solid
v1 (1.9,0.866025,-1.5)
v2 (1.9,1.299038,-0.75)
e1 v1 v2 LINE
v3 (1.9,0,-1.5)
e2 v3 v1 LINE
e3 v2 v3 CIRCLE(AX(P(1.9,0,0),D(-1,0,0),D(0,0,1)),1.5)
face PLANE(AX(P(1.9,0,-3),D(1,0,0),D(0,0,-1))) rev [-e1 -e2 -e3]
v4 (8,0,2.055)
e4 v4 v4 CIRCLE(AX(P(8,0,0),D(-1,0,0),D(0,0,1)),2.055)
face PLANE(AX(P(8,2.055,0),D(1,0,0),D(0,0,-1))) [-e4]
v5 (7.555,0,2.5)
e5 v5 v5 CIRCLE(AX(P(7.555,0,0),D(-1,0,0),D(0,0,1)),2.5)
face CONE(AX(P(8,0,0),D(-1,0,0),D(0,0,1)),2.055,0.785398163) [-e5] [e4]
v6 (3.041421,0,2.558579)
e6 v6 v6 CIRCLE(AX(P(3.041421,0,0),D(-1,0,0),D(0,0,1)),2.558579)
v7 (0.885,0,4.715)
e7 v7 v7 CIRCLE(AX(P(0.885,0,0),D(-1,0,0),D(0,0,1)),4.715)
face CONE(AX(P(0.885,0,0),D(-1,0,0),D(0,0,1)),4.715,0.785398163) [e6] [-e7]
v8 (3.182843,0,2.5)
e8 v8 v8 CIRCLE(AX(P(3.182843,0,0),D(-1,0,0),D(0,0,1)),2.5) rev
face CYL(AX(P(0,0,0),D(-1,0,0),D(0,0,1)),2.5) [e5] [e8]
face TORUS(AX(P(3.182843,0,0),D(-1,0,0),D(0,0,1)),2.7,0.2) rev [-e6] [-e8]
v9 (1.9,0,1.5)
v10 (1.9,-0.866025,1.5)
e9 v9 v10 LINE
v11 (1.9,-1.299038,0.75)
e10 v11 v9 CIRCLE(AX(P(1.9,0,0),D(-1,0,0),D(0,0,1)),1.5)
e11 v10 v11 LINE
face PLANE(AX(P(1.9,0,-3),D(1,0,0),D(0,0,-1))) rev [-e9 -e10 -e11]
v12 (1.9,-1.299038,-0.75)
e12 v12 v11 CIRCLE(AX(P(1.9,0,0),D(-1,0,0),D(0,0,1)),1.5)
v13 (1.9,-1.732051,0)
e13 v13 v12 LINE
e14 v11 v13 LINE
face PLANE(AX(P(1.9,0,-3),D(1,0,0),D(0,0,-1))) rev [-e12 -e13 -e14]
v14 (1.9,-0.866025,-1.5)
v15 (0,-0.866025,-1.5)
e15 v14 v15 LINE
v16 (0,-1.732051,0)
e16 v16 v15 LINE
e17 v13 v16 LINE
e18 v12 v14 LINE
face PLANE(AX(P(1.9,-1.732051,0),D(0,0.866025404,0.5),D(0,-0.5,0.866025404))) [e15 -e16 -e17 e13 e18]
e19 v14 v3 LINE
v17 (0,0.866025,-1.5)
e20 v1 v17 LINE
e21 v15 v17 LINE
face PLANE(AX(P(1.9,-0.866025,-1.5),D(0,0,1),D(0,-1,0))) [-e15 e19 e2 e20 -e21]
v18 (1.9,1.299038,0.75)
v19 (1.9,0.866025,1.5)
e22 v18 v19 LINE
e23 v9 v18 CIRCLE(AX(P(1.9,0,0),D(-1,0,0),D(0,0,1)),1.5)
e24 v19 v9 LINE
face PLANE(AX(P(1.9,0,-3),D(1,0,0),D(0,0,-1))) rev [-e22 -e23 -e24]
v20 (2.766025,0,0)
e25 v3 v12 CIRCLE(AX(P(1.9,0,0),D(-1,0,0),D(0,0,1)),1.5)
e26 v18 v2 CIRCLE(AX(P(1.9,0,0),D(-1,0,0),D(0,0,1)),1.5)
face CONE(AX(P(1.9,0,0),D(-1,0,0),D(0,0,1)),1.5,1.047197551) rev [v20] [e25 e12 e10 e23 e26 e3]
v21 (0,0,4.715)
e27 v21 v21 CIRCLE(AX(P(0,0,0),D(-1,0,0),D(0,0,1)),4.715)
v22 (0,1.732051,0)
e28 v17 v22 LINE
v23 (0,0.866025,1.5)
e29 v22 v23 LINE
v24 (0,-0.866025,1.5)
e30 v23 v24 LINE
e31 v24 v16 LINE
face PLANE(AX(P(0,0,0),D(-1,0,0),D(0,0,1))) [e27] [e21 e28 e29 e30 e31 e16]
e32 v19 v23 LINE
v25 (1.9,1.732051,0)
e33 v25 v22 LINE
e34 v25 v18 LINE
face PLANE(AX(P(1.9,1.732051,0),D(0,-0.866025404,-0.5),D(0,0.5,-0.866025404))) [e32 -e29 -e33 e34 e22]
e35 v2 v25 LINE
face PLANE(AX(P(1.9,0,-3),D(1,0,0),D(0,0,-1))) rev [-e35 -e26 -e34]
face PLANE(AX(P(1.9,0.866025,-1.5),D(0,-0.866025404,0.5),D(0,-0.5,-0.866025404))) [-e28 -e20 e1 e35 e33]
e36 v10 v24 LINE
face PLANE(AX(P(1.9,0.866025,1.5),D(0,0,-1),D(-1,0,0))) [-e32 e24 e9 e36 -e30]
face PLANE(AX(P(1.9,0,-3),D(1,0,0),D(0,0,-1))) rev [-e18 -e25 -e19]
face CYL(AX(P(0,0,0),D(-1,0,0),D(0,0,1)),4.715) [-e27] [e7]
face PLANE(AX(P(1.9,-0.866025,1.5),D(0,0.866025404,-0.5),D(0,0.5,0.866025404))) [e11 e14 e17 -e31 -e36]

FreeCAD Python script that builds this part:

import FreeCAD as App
import Part
import Sketcher
Q = App.Units.Quantity


def edges_at(feature, points):
    """Names of the edges that pass closest to the given points."""
    edges = feature.Shape.Edges
    near = lambda p: min(range(len(edges)), key=lambda i: edges[i].distToShape(Part.Vertex(*p))[0])
    return sorted({f"Edge{near(p) + 1}" for p in points})


def add_polygon(sketch, points):
    """Adds a closed chain of lines whose ends are joined by coincident constraints."""
    first, n = sketch.GeometryCount, len(points)
    for a, b in zip(points, points[1:] + points[:1]):
        sketch.addGeometry(Part.LineSegment(App.Vector(*a, 0), App.Vector(*b, 0)), False)
    for i in range(n):
        sketch.addConstraint(Sketcher.Constraint("Coincident", first + i, 2, first + (i + 1) % n, 1))

doc = App.newDocument("Part")
body = doc.addObject("PartDesign::Body", "Body")

sketch1 = body.newObject("Sketcher::SketchObject", "Sketch")
sketch1.AttachmentSupport = (doc.getObject("XY_Plane"), [""])
sketch1.MapMode = "FlatFace"
add_polygon(sketch1, [(0, 4.7), (0, 0), (8, 0), (8, 2.1), (7.6, 2.5), (3.1, 2.5), (0.9, 4.7)])
sketch1.addConstraint([
    Sketcher.Constraint("Vertical", 0),
    Sketcher.Constraint("Horizontal", 1),
    Sketcher.Constraint("Vertical", 2),
    Sketcher.Constraint("Horizontal", 4),
    Sketcher.Constraint("Horizontal", 6),
    Sketcher.Constraint("Coincident", 0, 2, -1, 1),
    Sketcher.Constraint("Parallel", 3, 5),
    Sketcher.Constraint("DistanceX", 1, 1, 1, 2, Q("8 mm")),
    Sketcher.Constraint("Angle", 3, Q("135 deg")),
    Sketcher.Constraint("DistanceY", -1, 1, 3, 2, Q("2.5 mm")),
    Sketcher.Constraint("DistanceX", -1, 1, 4, 2, Q("3.1 mm")),
    Sketcher.Constraint("DistanceX", 4, 2, 4, 1, Q("4.455 mm")),
    Sketcher.Constraint("DistanceX", 6, 2, 6, 1, Q("0.885 mm")),
])
revolution = body.newObject("PartDesign::Revolution", "Revolution")
revolution.Profile = sketch1
revolution.ReferenceAxis = (sketch1, ["H_Axis"])
revolution.Angle = 360
doc.recompute()

fillet = body.newObject("PartDesign::Fillet", "Fillet")
fillet.Base = (revolution, edges_at(revolution, [(3.1, 0, -2.5)]))
fillet.Radius = 0.2

sketch2 = body.newObject("Sketcher::SketchObject", "Sketch001")
sketch2.AttachmentSupport = (doc.getObject("XY_Plane"), [""])
sketch2.MapMode = "FlatFace"
add_polygon(sketch2, [(1.9, 1.5), (0, 1.5), (0, 0), (2.8, 0)])
sketch2.addConstraint([
    Sketcher.Constraint("Horizontal", 0),
    Sketcher.Constraint("Vertical", 1),
    Sketcher.Constraint("Horizontal", 2),
    Sketcher.Constraint("Coincident", 1, 2, -1, 1),
    Sketcher.Constraint("Angle", 3, Q("120 deg")),
    Sketcher.Constraint("DistanceX", 0, 2, 0, 1, Q("1.9 mm")),
    Sketcher.Constraint("DistanceY", 1, 2, 1, 1, Q("1.5 mm")),
])
groove = body.newObject("PartDesign::Groove", "Groove")
groove.Profile = sketch2
groove.ReferenceAxis = (sketch2, ["H_Axis"])
groove.Angle = 360

sketch3 = body.newObject("Sketcher::SketchObject", "Sketch002")
sketch3.AttachmentSupport = (doc.getObject("YZ_Plane"), [""])
sketch3.MapMode = "FlatFace"
add_polygon(sketch3, [(0.9, -1.5), (-0.9, -1.5), (-1.7, 0), (-0.9, 1.5), (0.9, 1.5), (1.7, 0)])
sketch3.addConstraint([
    Sketcher.Constraint("Horizontal", 0),
    Sketcher.Constraint("Horizontal", 3),
    Sketcher.Constraint("Symmetric", 0, 2, 3, 2, -1, 1),
    Sketcher.Constraint("Symmetric", 1, 2, 4, 2, -1, 1),
    Sketcher.Constraint("PointOnObject", 1, 2, -1),
    Sketcher.Constraint("Parallel", 2, 5),
    Sketcher.Constraint("Vertical", 0, 2, 2, 2),
    Sketcher.Constraint("Angle", 1, Q("120 deg")),
    Sketcher.Constraint("DistanceY", 0, 2, 2, 2, Q("3 mm")),
    Sketcher.Constraint("DistanceX", 0, 2, 0, 1, Q("1.732051 mm")),
])
pocket1 = body.newObject("PartDesign::Pocket", "Pocket")
pocket1.Profile = sketch3
pocket1.Length = 1.9
pocket1.Reversed = True

doc.recompute()
